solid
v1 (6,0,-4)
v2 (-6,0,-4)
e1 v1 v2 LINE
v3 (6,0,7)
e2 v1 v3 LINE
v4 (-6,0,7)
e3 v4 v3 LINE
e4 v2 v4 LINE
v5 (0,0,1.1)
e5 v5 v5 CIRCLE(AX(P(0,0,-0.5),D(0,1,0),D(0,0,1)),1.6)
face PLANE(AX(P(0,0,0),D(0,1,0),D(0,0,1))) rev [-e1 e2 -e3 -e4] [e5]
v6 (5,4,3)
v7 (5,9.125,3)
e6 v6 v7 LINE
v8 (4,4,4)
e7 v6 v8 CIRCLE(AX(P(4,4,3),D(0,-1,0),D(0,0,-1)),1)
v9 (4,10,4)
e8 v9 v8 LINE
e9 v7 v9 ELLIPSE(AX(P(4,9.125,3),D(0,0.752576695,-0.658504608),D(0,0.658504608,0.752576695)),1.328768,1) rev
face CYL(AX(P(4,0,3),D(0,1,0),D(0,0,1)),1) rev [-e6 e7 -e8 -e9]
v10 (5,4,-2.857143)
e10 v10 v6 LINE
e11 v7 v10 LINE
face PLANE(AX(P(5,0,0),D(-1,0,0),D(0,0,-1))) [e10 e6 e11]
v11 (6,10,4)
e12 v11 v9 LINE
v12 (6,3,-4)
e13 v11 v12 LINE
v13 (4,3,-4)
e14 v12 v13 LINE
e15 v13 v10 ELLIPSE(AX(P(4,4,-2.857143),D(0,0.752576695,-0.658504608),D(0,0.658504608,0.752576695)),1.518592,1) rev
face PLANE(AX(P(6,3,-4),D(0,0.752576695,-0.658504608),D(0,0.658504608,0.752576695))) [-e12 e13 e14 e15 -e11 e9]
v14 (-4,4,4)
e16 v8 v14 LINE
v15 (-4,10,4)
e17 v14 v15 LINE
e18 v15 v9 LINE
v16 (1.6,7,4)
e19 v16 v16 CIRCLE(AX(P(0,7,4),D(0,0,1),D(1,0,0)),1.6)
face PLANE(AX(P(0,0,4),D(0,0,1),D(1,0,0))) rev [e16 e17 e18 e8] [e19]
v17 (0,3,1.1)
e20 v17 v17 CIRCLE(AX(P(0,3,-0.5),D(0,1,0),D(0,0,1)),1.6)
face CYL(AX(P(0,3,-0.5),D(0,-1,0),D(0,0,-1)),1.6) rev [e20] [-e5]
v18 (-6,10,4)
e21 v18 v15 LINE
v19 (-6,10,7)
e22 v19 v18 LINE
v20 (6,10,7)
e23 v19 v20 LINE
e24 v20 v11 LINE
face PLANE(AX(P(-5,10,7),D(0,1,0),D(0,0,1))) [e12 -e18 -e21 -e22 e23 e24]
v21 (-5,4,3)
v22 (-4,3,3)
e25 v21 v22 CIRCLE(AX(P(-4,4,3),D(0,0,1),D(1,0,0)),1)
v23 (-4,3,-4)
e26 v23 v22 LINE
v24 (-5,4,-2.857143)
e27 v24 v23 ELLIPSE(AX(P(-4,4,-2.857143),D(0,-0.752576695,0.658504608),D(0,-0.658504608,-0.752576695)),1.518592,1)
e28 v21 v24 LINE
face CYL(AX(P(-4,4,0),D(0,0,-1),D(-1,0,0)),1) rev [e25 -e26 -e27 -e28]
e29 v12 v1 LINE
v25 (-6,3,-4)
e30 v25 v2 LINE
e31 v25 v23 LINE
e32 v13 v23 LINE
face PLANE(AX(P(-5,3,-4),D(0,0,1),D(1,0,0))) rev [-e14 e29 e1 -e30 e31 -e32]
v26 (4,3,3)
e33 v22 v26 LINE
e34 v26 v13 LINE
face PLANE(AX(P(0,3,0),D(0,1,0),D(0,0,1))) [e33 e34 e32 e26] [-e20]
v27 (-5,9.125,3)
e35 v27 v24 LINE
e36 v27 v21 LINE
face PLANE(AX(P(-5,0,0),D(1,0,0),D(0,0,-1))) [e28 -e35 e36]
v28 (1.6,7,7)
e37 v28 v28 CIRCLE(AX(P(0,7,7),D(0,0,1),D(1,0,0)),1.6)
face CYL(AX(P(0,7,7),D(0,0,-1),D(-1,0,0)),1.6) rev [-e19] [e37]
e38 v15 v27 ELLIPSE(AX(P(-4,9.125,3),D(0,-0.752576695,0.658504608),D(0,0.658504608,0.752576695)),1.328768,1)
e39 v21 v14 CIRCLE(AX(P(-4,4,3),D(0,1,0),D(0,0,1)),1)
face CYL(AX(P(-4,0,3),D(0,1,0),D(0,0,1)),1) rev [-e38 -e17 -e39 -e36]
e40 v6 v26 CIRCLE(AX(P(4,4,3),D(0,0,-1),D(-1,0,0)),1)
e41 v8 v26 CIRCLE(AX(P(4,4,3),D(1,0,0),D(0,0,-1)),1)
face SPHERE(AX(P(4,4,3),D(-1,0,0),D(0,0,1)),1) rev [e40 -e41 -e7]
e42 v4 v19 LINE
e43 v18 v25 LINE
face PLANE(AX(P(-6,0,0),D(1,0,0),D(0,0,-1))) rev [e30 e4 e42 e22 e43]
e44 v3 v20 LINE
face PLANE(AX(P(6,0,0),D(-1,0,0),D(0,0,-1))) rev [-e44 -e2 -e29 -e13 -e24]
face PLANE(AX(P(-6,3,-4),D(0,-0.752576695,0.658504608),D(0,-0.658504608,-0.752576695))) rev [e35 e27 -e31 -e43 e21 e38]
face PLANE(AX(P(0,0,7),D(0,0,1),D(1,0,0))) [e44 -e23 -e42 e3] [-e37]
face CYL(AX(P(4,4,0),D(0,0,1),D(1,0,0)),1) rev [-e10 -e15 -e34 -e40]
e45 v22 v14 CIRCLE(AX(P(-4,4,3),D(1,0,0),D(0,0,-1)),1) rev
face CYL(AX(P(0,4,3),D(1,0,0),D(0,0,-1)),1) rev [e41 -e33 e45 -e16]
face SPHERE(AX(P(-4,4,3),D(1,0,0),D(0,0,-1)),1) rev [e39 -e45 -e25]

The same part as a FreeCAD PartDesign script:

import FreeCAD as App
import Part
import Sketcher
Q = App.Units.Quantity


def edges_at(feature, points):
    """Names of the edges that pass closest to the given points."""
    edges = feature.Shape.Edges
    near = lambda p: min(range(len(edges)), key=lambda i: edges[i].distToShape(Part.Vertex(*p))[0])
    return sorted({f"Edge{near(p) + 1}" for p in points})


def add_polygon(sketch, points):
    """Adds a closed chain of lines whose ends are joined by coincident constraints."""
    first, n = sketch.GeometryCount, len(points)
    for a, b in zip(points, points[1:] + points[:1]):
        sketch.addGeometry(Part.LineSegment(App.Vector(*a, 0), App.Vector(*b, 0)), False)
    for i in range(n):
        sketch.addConstraint(Sketcher.Constraint("Coincident", first + i, 2, first + (i + 1) % n, 1))

doc = App.newDocument("Part")
body = doc.addObject("PartDesign::Body", "Body")

# Sketch on XZ plane
sketch1 = body.newObject("Sketcher::SketchObject", "Sketch")
sketch1.AttachmentSupport = (doc.getObject("XZ_Plane"), [""])
sketch1.MapMode = "FlatFace"
add_polygon(sketch1, [(-5, -4), (-5, 4), (5, 4), (5, -4)])  # lines 0-3
sketch1.addGeometry(Part.Circle(App.Vector(0, -0.5, 0), App.Vector(0, 0, 1), 1.6), False)  # 4
sketch1.addConstraint(Sketcher.Constraint("Vertical", 0))
sketch1.addConstraint(Sketcher.Constraint("Horizontal", 1))
sketch1.addConstraint(Sketcher.Constraint("Vertical", 2))
sketch1.addConstraint(Sketcher.Constraint("Horizontal", 3))
sketch1.addConstraint(Sketcher.Constraint("Symmetric", 0, 2, 2, 2, -1, 1))
sketch1.addConstraint(Sketcher.Constraint("PointOnObject", 4, 3, -2))
sketch1.addConstraint(Sketcher.Constraint("Diameter", 4, Q("3.2 mm")))
sketch1.addConstraint(Sketcher.Constraint("DistanceX", 1, 1, 1, 2, Q("10 mm")))
sketch1.addConstraint(Sketcher.Constraint("DistanceY", 0, 1, 0, 2, Q("8 mm")))
sketch1.addConstraint(Sketcher.Constraint("DistanceY", 4, 3, -1, 1, Q("0.5 mm")))
pad1 = body.newObject("PartDesign::Pad", "Pad")
pad1.Profile = sketch1
pad1.Length = 3
pad1.Reversed = True

# Sketch on XY plane
sketch2 = body.newObject("Sketcher::SketchObject", "Sketch001")
sketch2.AttachmentSupport = (doc.getObject("XY_Plane"), [""])
sketch2.MapMode = "FlatFace"
sketch2.AttachmentOffset = App.Placement(App.Vector(0, 0, 4), App.Rotation())
add_polygon(sketch2, [(-5, 10), (-5, 0), (5, 0), (5, 10)])  # lines 0-3
sketch2.addGeometry(Part.Circle(App.Vector(0, 7, 0), App.Vector(0, 0, 1), 1.6), False)  # 4
sketch2.addConstraint(Sketcher.Constraint("Vertical", 0))
sketch2.addConstraint(Sketcher.Constraint("Horizontal", 1))
sketch2.addConstraint(Sketcher.Constraint("Vertical", 2))
sketch2.addConstraint(Sketcher.Constraint("Horizontal", 3))
sketch2.addConstraint(Sketcher.Constraint("Symmetric", 0, 2, 1, 2, -1, 1))
sketch2.addConstraint(Sketcher.Constraint("PointOnObject", 4, 3, -2))
sketch2.addConstraint(Sketcher.Constraint("Equal", 3, 0))
sketch2.addConstraint(Sketcher.Constraint("Diameter", 4, Q("3.2 mm")))
sketch2.addConstraint(Sketcher.Constraint("DistanceX", 1, 1, 1, 2, Q("10 mm")))
sketch2.addConstraint(Sketcher.Constraint("DistanceY", -1, 1, 4, 3, Q("7 mm")))
pad2 = body.newObject("PartDesign::Pad", "Pad001")
pad2.Profile = sketch2
pad2.Length = 3

# Sketch on YZ plane
sketch3 = body.newObject("Sketcher::SketchObject", "Sketch002")
sketch3.AttachmentSupport = (doc.getObject("YZ_Plane"), [""])
sketch3.MapMode = "FlatFace"
sketch3.AttachmentOffset = App.Placement(App.Vector(0, 0, -5), App.Rotation())
add_polygon(sketch3, [(10, 4), (3, -4), (0, -4), (0, 7), (10, 7)])  # lines 0-4
sketch3.addConstraint(Sketcher.Constraint("Horizontal", 1))
sketch3.addConstraint(Sketcher.Constraint("Vertical", 2))
sketch3.addConstraint(Sketcher.Constraint("Horizontal", 3))
sketch3.addConstraint(Sketcher.Constraint("Vertical", 4))
sketch3.addConstraint(Sketcher.Constraint("PointOnObject", 1, 2, -2))
sketch3.addConstraint(Sketcher.Constraint("Equal", 1, 4))
sketch3.addConstraint(Sketcher.Constraint("DistanceX", 1, 2, 1, 1, Q("3 mm")))
sketch3.addConstraint(Sketcher.Constraint("DistanceX", 3, 1, 3, 2, Q("10 mm")))
sketch3.addConstraint(Sketcher.Constraint("DistanceY", 2, 1, 2, 2, Q("11 mm")))
sketch3.addConstraint(Sketcher.Constraint("DistanceY", 0, 2, -1, 1, Q("4 mm")))
pad3 = body.newObject("PartDesign::Pad", "Pad002")
pad3.Profile = sketch3
pad3.Length = 1
pad3.Reversed = True
doc.recompute()

mirrored = body.newObject("PartDesign::Mirrored", "Mirrored")
mirrored.Originals = [pad3]
mirrored.MirrorPlane = (doc.getObject("YZ_Plane"), [""])
body.Tip = mirrored
doc.recompute()

fillet = body.newObject("PartDesign::Fillet", "Fillet")
fillet.Base = (mirrored, edges_at(mirrored, [(0, 3, 4)]))
fillet.Radius = 1
doc.recompute()

fillet2 = body.newObject("PartDesign::Fillet", "Fillet001")
fillet2.Base = (fillet, edges_at(fillet, [
    (-5, 3, -0.5),
    (5, 3, -0.5),
    (5, 7, 4),
    (5, 3.293, 3.707),
    (-5, 7, 4),
    (-5, 3.293, 3.707),
]))
fillet2.Radius = 1

doc.recompute()
